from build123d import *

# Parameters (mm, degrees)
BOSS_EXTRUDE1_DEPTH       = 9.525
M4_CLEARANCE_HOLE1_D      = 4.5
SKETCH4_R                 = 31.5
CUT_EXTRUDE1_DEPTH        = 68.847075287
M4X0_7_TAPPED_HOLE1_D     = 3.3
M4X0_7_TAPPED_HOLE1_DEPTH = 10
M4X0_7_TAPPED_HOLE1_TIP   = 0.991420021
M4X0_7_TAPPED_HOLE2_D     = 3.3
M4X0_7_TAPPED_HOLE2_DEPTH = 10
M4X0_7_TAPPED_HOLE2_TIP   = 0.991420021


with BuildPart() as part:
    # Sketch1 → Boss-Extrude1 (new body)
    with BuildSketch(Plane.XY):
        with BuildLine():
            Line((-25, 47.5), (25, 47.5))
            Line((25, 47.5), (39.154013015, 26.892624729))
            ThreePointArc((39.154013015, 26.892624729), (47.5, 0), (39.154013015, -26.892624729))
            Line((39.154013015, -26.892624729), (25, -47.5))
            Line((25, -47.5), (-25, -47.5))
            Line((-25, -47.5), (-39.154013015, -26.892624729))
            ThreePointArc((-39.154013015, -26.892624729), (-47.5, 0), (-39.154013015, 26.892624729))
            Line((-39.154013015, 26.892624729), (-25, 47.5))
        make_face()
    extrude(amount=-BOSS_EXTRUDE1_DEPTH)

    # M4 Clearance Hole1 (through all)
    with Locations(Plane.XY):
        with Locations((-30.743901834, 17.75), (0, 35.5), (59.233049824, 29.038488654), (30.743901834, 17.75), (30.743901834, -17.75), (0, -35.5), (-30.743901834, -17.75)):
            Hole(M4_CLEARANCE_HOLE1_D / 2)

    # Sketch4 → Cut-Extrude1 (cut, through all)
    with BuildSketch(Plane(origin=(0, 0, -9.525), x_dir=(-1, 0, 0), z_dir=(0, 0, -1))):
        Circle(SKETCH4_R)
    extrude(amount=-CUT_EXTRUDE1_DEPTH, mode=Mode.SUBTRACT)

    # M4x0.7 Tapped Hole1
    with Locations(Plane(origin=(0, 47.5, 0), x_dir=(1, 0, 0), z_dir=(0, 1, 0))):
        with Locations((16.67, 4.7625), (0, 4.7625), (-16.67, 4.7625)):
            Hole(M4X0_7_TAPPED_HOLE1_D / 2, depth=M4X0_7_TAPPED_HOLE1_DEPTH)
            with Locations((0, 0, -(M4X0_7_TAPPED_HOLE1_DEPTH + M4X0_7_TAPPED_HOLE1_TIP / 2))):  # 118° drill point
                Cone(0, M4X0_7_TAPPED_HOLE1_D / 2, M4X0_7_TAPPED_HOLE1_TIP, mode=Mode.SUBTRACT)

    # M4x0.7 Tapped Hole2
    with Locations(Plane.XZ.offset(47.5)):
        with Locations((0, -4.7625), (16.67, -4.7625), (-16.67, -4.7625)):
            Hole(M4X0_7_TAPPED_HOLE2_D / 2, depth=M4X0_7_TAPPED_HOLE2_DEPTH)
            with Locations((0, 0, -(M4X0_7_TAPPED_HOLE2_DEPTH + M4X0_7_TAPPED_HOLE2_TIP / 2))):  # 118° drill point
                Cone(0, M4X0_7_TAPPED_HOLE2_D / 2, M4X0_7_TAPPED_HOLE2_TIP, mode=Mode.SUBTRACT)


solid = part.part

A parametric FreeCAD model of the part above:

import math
import FreeCAD as App
import Part
import Sketcher
from FreeCAD import Vector
Q = App.Units.Quantity

doc = App.newDocument("Part")
body = doc.addObject("PartDesign::Body", "Body")

sketch1 = doc.addObject("Sketcher::SketchObject", "Sketch")
body.addObject(sketch1)
sketch1.AttachmentSupport = (doc.XY_Plane, [""])
sketch1.MapMode = "FlatFace"
sketch1.addGeometry([
    Part.LineSegment(Vector(25, 48, 0), Vector(-25, 48, 0)),
    Part.LineSegment(Vector(-25, 48, 0), Vector(-39, 27, 0)),
    Part.ArcOfCircle(Part.Circle(Vector(0, 0, 0), Vector(0, 0, 1), 48), math.radians(146), math.radians(214)),
    Part.LineSegment(Vector(-39, -27, 0), Vector(-25, -48, 0)),
    Part.LineSegment(Vector(-25, -48, 0), Vector(25, -48, 0)),
    Part.LineSegment(Vector(25, -48, 0), Vector(39, -27, 0)),
    Part.ArcOfCircle(Part.Circle(Vector(0, 0, 0), Vector(0, 0, 1), 48), math.radians(-34), math.radians(34)),
    Part.LineSegment(Vector(39, 27, 0), Vector(25, 48, 0)),
], False)
sketch1.addConstraint([
    Sketcher.Constraint("Coincident", 0, 2, 1, 1),
    Sketcher.Constraint("Tangent", 1, 2, 2, 1),
    Sketcher.Constraint("Tangent", 2, 2, 3, 1),
    Sketcher.Constraint("Coincident", 3, 2, 4, 1),
    Sketcher.Constraint("Coincident", 4, 2, 5, 1),
    Sketcher.Constraint("Tangent", 5, 2, 6, 1),
    Sketcher.Constraint("Tangent", 6, 2, 7, 1),
    Sketcher.Constraint("Coincident", 7, 2, 0, 1),
    Sketcher.Constraint("Horizontal", 0),
    Sketcher.Constraint("Horizontal", 4),
    Sketcher.Constraint("Coincident", 2, 3, -1, 1),
    Sketcher.Constraint("Coincident", 6, 3, -1, 1),
    Sketcher.Constraint("Equal", 2, 6),
    Sketcher.Constraint("Symmetric", 0, 2, 4, 2, -1, 1),
    Sketcher.Constraint("Parallel", 3, 7),
    Sketcher.Constraint("Horizontal", 2, 2, 5, 2),
    Sketcher.Constraint("Radius", 2, Q("47.5 mm")),
    Sketcher.Constraint("DistanceX", 0, 2, 0, 1, Q("50 mm")),
    Sketcher.Constraint("Distance", 1, Q("25 mm")),
])
pad1 = doc.addObject("PartDesign::Pad", "Pad")
body.addObject(pad1)
pad1.Profile = sketch1
pad1.Length = 9.525
pad1.Reversed = True

sketch2 = doc.addObject("Sketcher::SketchObject", "Sketch001")
body.addObject(sketch2)
sketch2.AttachmentSupport = (doc.XY_Plane, [""])
sketch2.MapMode = "FlatFace"
sketch2.addGeometry([
    Part.Circle(Vector(-30.7, 17.8, 0), Vector(0, 0, 1), 2.2),
    Part.Circle(Vector(0, 35.5, 0), Vector(0, 0, 1), 2.2),
    Part.Circle(Vector(59.2, 29, 0), Vector(0, 0, 1), 2.2),
    Part.Circle(Vector(30.7, 17.8, 0), Vector(0, 0, 1), 2.2),
    Part.Circle(Vector(30.7, -17.8, 0), Vector(0, 0, 1), 2.2),
    Part.Circle(Vector(0, -35.5, 0), Vector(0, 0, 1), 2.2),
    Part.Circle(Vector(-30.7, -17.8, 0), Vector(0, 0, 1), 2.2),
], False)
sketch2.addConstraint([
    Sketcher.Constraint("Equal", 0, 1),
    Sketcher.Constraint("Equal", 1, 2),
    Sketcher.Constraint("Equal", 2, 3),
    Sketcher.Constraint("Equal", 3, 4),
    Sketcher.Constraint("Equal", 4, 5),
    Sketcher.Constraint("Equal", 5, 6),
    Sketcher.Constraint("Symmetric", 0, 3, 4, 3, -1, 1),
    Sketcher.Constraint("Symmetric", 1, 3, 5, 3, -1, 1),
    Sketcher.Constraint("Symmetric", 3, 3, 6, 3, -1, 1),
    Sketcher.Constraint("Symmetric", 0, 3, 3, 3, -2),
    Sketcher.Constraint("PointOnObject", 1, 3, -2),
    Sketcher.Constraint("Diameter", 0, Q("4.5 mm")),
    Sketcher.Constraint("DistanceY", 5, 3, 1, 3, Q("71 mm")),
    Sketcher.Constraint("DistanceY", 4, 3, 3, 3, Q("35.5 mm")),
    Sketcher.Constraint("DistanceX", 0, 3, -1, 1, Q("30.743902 mm")),
    Sketcher.Constraint("DistanceX", -1, 1, 2, 3, Q("59.23305 mm")),
    Sketcher.Constraint("DistanceY", -1, 1, 2, 3, Q("29.038489 mm")),
])
doc.recompute()
hole = doc.addObject("PartDesign::Hole", "Hole")
body.addObject(hole)
hole.Profile = sketch2
hole.ThreadType = "None"
hole.Diameter = 4.5
hole.DepthType = "ThroughAll"

sketch3 = doc.addObject("Sketcher::SketchObject", "Sketch002")
body.addObject(sketch3)
sketch3.AttachmentSupport = (doc.XY_Plane, [""])
sketch3.MapMode = "FlatFace"
sketch3.AttachmentOffset = App.Placement(Vector(0, 0, -9.525), App.Rotation())
sketch3.addGeometry(Part.Circle(Vector(0, 0, 0), Vector(0, 0, 1), 32), False)
sketch3.addConstraint([
    Sketcher.Constraint("Coincident", 0, 3, -1, 1),
    Sketcher.Constraint("Diameter", 0, Q("63 mm")),
])
pocket1 = doc.addObject("PartDesign::Pocket", "Pocket")
body.addObject(pocket1)
pocket1.Profile = sketch3
pocket1.Type = "ThroughAll"
pocket1.Reversed = True

sketch4 = doc.addObject("Sketcher::SketchObject", "Sketch003")
body.addObject(sketch4)
sketch4.AttachmentSupport = (doc.XZ_Plane, [""])
sketch4.MapMode = "FlatFace"
sketch4.AttachmentOffset = App.Placement(Vector(0, 0, -47.5), App.Rotation())
sketch4.addGeometry([
    Part.Circle(Vector(16.7, -4.8, 0), Vector(0, 0, 1), 1.6),
    Part.Circle(Vector(0, -4.8, 0), Vector(0, 0, 1), 1.6),
    Part.Circle(Vector(-16.7, -4.8, 0), Vector(0, 0, 1), 1.6),
], False)
sketch4.addConstraint([
    Sketcher.Constraint("Equal", 0, 1),
    Sketcher.Constraint("Equal", 1, 2),
    Sketcher.Constraint("Symmetric", 0, 3, 2, 3, -2),
    Sketcher.Constraint("PointOnObject", 1, 3, -2),
    Sketcher.Constraint("Horizontal", 0, 3, 1, 3),
    Sketcher.Constraint("Diameter", 0, Q("3.3 mm")),
    Sketcher.Constraint("DistanceX", -1, 1, 0, 3, Q("16.67 mm")),
    Sketcher.Constraint("DistanceY", 0, 3, -1, 1, Q("4.7625 mm")),
])
doc.recompute()
hole2 = doc.addObject("PartDesign::Hole", "Hole001")
body.addObject(hole2)
hole2.Profile = sketch4
hole2.ThreadType = "None"
hole2.Diameter = 3.3
hole2.DepthType = "Dimension"
hole2.Depth = 10
hole2.DrillPoint = "Angled"
hole2.DrillPointAngle = 118
hole2.Reversed = True

sketch5 = doc.addObject("Sketcher::SketchObject", "Sketch004")
body.addObject(sketch5)
sketch5.AttachmentSupport = (doc.XZ_Plane, [""])
sketch5.MapMode = "FlatFace"
sketch5.AttachmentOffset = App.Placement(Vector(0, 0, 47.5), App.Rotation())
sketch5.addGeometry([
    Part.Circle(Vector(0, -4.8, 0), Vector(0, 0, 1), 1.6),
    Part.Circle(Vector(16.7, -4.8, 0), Vector(0, 0, 1), 1.6),
    Part.Circle(Vector(-16.7, -4.8, 0), Vector(0, 0, 1), 1.6),
], False)
sketch5.addConstraint([
    Sketcher.Constraint("Equal", 0, 1),
    Sketcher.Constraint("Equal", 1, 2),
    Sketcher.Constraint("Symmetric", 1, 3, 2, 3, -2),
    Sketcher.Constraint("PointOnObject", 0, 3, -2),
    Sketcher.Constraint("Horizontal", 0, 3, 1, 3),
    Sketcher.Constraint("Diameter", 0, Q("3.3 mm")),
    Sketcher.Constraint("DistanceX", -1, 1, 1, 3, Q("16.67 mm")),
    Sketcher.Constraint("DistanceY", 0, 3, -1, 1, Q("4.7625 mm")),
])
doc.recompute()
hole3 = doc.addObject("PartDesign::Hole", "Hole002")
body.addObject(hole3)
hole3.Profile = sketch5
hole3.ThreadType = "None"
hole3.Diameter = 3.3
hole3.DepthType = "Dimension"
hole3.Depth = 10
hole3.DrillPoint = "Angled"
hole3.DrillPointAngle = 118

doc.recompute()
